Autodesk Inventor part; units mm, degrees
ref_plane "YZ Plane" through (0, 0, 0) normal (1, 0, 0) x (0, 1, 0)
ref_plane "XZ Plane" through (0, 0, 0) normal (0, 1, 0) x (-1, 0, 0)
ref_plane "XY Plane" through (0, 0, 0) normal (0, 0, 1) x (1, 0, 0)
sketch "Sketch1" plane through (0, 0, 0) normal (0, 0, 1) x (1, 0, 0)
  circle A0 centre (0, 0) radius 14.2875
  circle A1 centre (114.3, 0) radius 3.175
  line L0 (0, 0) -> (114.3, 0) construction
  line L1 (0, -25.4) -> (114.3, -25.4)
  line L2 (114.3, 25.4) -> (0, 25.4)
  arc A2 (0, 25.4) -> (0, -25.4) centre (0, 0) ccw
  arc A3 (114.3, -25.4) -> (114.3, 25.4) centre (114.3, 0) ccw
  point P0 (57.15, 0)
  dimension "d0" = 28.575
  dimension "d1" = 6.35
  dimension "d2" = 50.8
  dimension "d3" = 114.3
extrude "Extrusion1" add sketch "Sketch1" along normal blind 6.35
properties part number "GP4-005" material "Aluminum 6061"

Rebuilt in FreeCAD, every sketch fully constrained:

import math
import FreeCAD as App
import Part
import Sketcher
from FreeCAD import Vector
Q = App.Units.Quantity

doc = App.newDocument("Part")
body = doc.addObject("PartDesign::Body", "Body")

sketch1 = body.newObject("Sketcher::SketchObject", "Sketch")
sketch1.AttachmentSupport = (doc.getObject("XY_Plane"), [""])
sketch1.MapMode = "FlatFace"
sketch1.addGeometry([
    Part.ArcOfCircle(Part.Circle(Vector(0, 0, 0), Vector(0, 0, 1), 25.4), math.radians(90), math.radians(270)),
    Part.LineSegment(Vector(0, -25.4, 0), Vector(114.3, -25.4, 0)),
    Part.ArcOfCircle(Part.Circle(Vector(114.3, 0, 0), Vector(0, 0, 1), 25.4), math.radians(-90), math.radians(90)),
    Part.LineSegment(Vector(114.3, 25.4, 0), Vector(0, 25.4, 0)),
    Part.Circle(Vector(0, 0, 0), Vector(0, 0, 1), 14.3),
    Part.Circle(Vector(114.3, 0, 0), Vector(0, 0, 1), 3.2),
], False)
sketch1.addConstraint([
    Sketcher.Constraint("Tangent", 0, 2, 1, 1),
    Sketcher.Constraint("Tangent", 1, 2, 2, 1),
    Sketcher.Constraint("Tangent", 2, 2, 3, 1),
    Sketcher.Constraint("Tangent", 3, 2, 0, 1),
    Sketcher.Constraint("Horizontal", 1),
    Sketcher.Constraint("Horizontal", 3),
    Sketcher.Constraint("Coincident", 0, 3, -1, 1),
    Sketcher.Constraint("Coincident", 4, 3, -1, 1),
    Sketcher.Constraint("Coincident", 5, 3, 2, 3),
    Sketcher.Constraint("Radius", 0, Q("1 in")),
    Sketcher.Constraint("Diameter", 5, Q("0.25 in")),
    Sketcher.Constraint("Diameter", 4, Q("1.125 in")),
    Sketcher.Constraint("DistanceX", 1, 1, 1, 2, Q("4.5 in")),
])
pad1 = body.newObject("PartDesign::Pad", "Pad")
pad1.Profile = sketch1
pad1.Length = Q("0.25 in")

doc.recompute()
